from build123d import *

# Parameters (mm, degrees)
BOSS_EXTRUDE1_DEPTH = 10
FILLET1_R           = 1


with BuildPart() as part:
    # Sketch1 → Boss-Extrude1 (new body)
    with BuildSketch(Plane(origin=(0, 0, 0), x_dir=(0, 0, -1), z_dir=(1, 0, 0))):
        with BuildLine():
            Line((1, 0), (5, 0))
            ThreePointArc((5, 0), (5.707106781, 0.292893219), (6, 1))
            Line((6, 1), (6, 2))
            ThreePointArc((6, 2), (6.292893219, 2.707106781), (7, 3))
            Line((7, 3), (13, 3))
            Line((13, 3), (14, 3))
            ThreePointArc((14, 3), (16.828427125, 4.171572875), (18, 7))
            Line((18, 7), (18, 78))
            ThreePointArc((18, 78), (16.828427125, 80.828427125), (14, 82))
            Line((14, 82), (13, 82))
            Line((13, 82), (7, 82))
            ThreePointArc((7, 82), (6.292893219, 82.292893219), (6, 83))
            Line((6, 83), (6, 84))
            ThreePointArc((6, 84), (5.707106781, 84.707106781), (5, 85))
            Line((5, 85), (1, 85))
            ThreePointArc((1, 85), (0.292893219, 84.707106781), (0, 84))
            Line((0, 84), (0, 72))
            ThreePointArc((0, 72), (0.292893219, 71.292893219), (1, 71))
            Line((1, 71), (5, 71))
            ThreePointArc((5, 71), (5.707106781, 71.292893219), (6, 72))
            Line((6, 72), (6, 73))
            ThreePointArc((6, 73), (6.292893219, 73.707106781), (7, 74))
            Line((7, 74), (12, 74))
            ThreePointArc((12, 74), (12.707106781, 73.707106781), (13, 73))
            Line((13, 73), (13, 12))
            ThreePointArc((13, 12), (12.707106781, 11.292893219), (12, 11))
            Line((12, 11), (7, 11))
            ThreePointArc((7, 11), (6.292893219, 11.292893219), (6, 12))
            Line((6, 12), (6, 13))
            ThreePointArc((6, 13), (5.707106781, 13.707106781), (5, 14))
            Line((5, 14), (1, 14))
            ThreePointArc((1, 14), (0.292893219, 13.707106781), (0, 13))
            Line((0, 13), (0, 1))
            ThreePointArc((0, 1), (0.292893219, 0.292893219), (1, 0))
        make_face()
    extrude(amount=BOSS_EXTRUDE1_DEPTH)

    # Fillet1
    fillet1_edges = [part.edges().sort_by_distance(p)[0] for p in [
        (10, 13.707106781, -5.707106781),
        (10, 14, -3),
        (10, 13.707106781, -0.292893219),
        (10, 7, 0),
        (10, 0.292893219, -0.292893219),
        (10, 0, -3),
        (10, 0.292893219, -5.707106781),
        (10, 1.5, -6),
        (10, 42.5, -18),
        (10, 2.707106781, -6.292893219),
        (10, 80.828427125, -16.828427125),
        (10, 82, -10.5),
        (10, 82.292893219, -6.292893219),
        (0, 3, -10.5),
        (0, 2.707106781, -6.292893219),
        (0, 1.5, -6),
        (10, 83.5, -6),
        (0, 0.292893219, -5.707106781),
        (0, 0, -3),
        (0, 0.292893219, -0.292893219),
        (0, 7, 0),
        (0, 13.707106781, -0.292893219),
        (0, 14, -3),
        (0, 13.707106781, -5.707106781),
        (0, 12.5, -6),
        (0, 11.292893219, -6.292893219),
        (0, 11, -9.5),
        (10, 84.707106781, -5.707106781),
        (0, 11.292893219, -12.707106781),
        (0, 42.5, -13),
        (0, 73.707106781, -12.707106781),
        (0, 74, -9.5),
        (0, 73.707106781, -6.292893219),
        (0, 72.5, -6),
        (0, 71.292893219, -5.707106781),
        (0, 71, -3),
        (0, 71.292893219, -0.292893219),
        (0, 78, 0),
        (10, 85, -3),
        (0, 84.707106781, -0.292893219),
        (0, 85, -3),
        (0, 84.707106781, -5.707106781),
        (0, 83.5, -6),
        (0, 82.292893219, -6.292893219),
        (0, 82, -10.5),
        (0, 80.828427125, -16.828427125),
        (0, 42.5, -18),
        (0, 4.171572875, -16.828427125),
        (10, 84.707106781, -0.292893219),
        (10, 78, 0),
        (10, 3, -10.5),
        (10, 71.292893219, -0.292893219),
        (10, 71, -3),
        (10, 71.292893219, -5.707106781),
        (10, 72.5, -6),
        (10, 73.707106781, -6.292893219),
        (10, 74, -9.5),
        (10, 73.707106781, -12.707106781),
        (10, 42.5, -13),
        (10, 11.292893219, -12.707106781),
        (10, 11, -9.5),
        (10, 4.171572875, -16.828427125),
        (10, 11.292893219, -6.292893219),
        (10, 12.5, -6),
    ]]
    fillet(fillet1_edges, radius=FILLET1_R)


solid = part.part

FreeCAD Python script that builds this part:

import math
import FreeCAD as App
import Part
import Sketcher

V = App.Vector


def edges_at(feature, points):
    """Names of the edges that pass closest to the given points."""
    edges = feature.Shape.Edges
    near = lambda p: min(range(len(edges)), key=lambda i: edges[i].distToShape(Part.Vertex(*p))[0])
    return sorted({f"Edge{near(p) + 1}" for p in points})

doc = App.newDocument("Part")
body = doc.addObject("PartDesign::Body", "Body")

sketch1 = doc.addObject("Sketcher::SketchObject", "Sketch")
body.addObject(sketch1)
sketch1.AttachmentSupport = (doc.YZ_Plane, [""])
sketch1.MapMode = "FlatFace"
sketch1.addGeometry([
    Part.LineSegment(V(0, -1, 0), V(0, -5, 0)),
    Part.ArcOfCircle(Part.Circle(V(1, -5, 0), V(0, 0, 1), 1), math.radians(-180), math.radians(-90)),
    Part.LineSegment(V(1, -6, 0), V(2, -6, 0)),
    Part.ArcOfCircle(Part.Circle(V(2, -7, 0), V(0, 0, 1), 1), math.radians(0), math.radians(90)),
    Part.LineSegment(V(3, -7, 0), V(3, -14, 0)),
    Part.ArcOfCircle(Part.Circle(V(7, -14, 0), V(0, 0, 1), 4), math.radians(180), math.radians(270)),
    Part.LineSegment(V(7, -18, 0), V(78, -18, 0)),
    Part.ArcOfCircle(Part.Circle(V(78, -14, 0), V(0, 0, 1), 4), math.radians(-90), math.radians(0)),
    Part.LineSegment(V(82, -14, 0), V(82, -7, 0)),
    Part.ArcOfCircle(Part.Circle(V(83, -7, 0), V(0, 0, 1), 1), math.radians(90), math.radians(180)),
    Part.LineSegment(V(83, -6, 0), V(84, -6, 0)),
    Part.ArcOfCircle(Part.Circle(V(84, -5, 0), V(0, 0, 1), 1), math.radians(-90), math.radians(0)),
    Part.LineSegment(V(85, -5, 0), V(85, -1, 0)),
    Part.ArcOfCircle(Part.Circle(V(84, -1, 0), V(0, 0, 1), 1), math.radians(0), math.radians(90)),
    Part.LineSegment(V(84, 0, 0), V(72, 0, 0)),
    Part.ArcOfCircle(Part.Circle(V(72, -1, 0), V(0, 0, 1), 1), math.radians(90), math.radians(180)),
    Part.LineSegment(V(71, -1, 0), V(71, -5, 0)),
    Part.ArcOfCircle(Part.Circle(V(72, -5, 0), V(0, 0, 1), 1), math.radians(-180), math.radians(-90)),
    Part.LineSegment(V(72, -6, 0), V(73, -6, 0)),
    Part.ArcOfCircle(Part.Circle(V(73, -7, 0), V(0, 0, 1), 1), math.radians(0), math.radians(90)),
    Part.LineSegment(V(74, -7, 0), V(74, -12, 0)),
    Part.ArcOfCircle(Part.Circle(V(73, -12, 0), V(0, 0, 1), 1), math.radians(-90), math.radians(0)),
    Part.LineSegment(V(73, -13, 0), V(12, -13, 0)),
    Part.ArcOfCircle(Part.Circle(V(12, -12, 0), V(0, 0, 1), 1), math.radians(-180), math.radians(-90)),
    Part.LineSegment(V(11, -12, 0), V(11, -7, 0)),
    Part.ArcOfCircle(Part.Circle(V(12, -7, 0), V(0, 0, 1), 1), math.radians(90), math.radians(180)),
    Part.LineSegment(V(12, -6, 0), V(13, -6, 0)),
    Part.ArcOfCircle(Part.Circle(V(13, -5, 0), V(0, 0, 1), 1), math.radians(-90), math.radians(0)),
    Part.LineSegment(V(14, -5, 0), V(14, -1, 0)),
    Part.ArcOfCircle(Part.Circle(V(13, -1, 0), V(0, 0, 1), 1), math.radians(0), math.radians(90)),
    Part.LineSegment(V(13, 0, 0), V(1, 0, 0)),
    Part.ArcOfCircle(Part.Circle(V(1, -1, 0), V(0, 0, 1), 1), math.radians(90), math.radians(180)),
], False)
sketch1.addConstraint([
    Sketcher.Constraint("Tangent", 0, 2, 1, 1),
    Sketcher.Constraint("Tangent", 1, 2, 2, 1),
    Sketcher.Constraint("Tangent", 2, 2, 3, 2),
    Sketcher.Constraint("Tangent", 3, 1, 4, 1),
    Sketcher.Constraint("Tangent", 4, 2, 5, 1),
    Sketcher.Constraint("Tangent", 5, 2, 6, 1),
    Sketcher.Constraint("Tangent", 6, 2, 7, 1),
    Sketcher.Constraint("Tangent", 7, 2, 8, 1),
    Sketcher.Constraint("Tangent", 8, 2, 9, 2),
    Sketcher.Constraint("Tangent", 9, 1, 10, 1),
    Sketcher.Constraint("Tangent", 10, 2, 11, 1),
    Sketcher.Constraint("Tangent", 11, 2, 12, 1),
    Sketcher.Constraint("Tangent", 12, 2, 13, 1),
    Sketcher.Constraint("Tangent", 13, 2, 14, 1),
    Sketcher.Constraint("Tangent", 14, 2, 15, 1),
    Sketcher.Constraint("Tangent", 15, 2, 16, 1),
    Sketcher.Constraint("Tangent", 16, 2, 17, 1),
    Sketcher.Constraint("Tangent", 17, 2, 18, 1),
    Sketcher.Constraint("Tangent", 18, 2, 19, 2),
    Sketcher.Constraint("Tangent", 19, 1, 20, 1),
    Sketcher.Constraint("Tangent", 20, 2, 21, 2),
    Sketcher.Constraint("Tangent", 21, 1, 22, 1),
    Sketcher.Constraint("Tangent", 22, 2, 23, 2),
    Sketcher.Constraint("Tangent", 23, 1, 24, 1),
    Sketcher.Constraint("Tangent", 24, 2, 25, 2),
    Sketcher.Constraint("Tangent", 25, 1, 26, 1),
    Sketcher.Constraint("Tangent", 26, 2, 27, 1),
    Sketcher.Constraint("Tangent", 27, 2, 28, 1),
    Sketcher.Constraint("Tangent", 28, 2, 29, 1),
    Sketcher.Constraint("Tangent", 29, 2, 30, 1),
    Sketcher.Constraint("Tangent", 30, 2, 31, 1),
    Sketcher.Constraint("Tangent", 31, 2, 0, 1),
    Sketcher.Constraint("Vertical", 0),
    Sketcher.Constraint("Horizontal", 2),
    Sketcher.Constraint("Vertical", 4),
    Sketcher.Constraint("Horizontal", 6),
    Sketcher.Constraint("Vertical", 8),
    Sketcher.Constraint("Horizontal", 10),
    Sketcher.Constraint("Vertical", 12),
    Sketcher.Constraint("Horizontal", 14),
    Sketcher.Constraint("Vertical", 16),
    Sketcher.Constraint("Horizontal", 18),
    Sketcher.Constraint("Vertical", 20),
    Sketcher.Constraint("Horizontal", 22),
    Sketcher.Constraint("Vertical", 24),
    Sketcher.Constraint("Horizontal", 26),
    Sketcher.Constraint("Vertical", 28),
    Sketcher.Constraint("Horizontal", 30),
    Sketcher.Constraint("Equal", 1, 3),
    Sketcher.Constraint("Equal", 5, 7),
    Sketcher.Constraint("Equal", 3, 9),
    Sketcher.Constraint("Equal", 9, 11),
    Sketcher.Constraint("Equal", 11, 13),
    Sketcher.Constraint("Equal", 13, 15),
    Sketcher.Constraint("Equal", 15, 17),
    Sketcher.Constraint("Equal", 17, 19),
    Sketcher.Constraint("Equal", 19, 21),
    Sketcher.Constraint("Equal", 21, 23),
    Sketcher.Constraint("Equal", 23, 25),
    Sketcher.Constraint("Equal", 25, 27),
    Sketcher.Constraint("Equal", 27, 29),
    Sketcher.Constraint("Equal", 29, 31),
    Sketcher.Constraint("PointOnObject", 0, 2, -2),
    Sketcher.Constraint("PointOnObject", 13, 2, -1),
    Sketcher.Constraint("PointOnObject", 29, 2, -1),
    Sketcher.Constraint("Horizontal", 3, 3, 9, 3),
    Sketcher.Constraint("Horizontal", 11, 3, 17, 3),
    Sketcher.Constraint("Horizontal", 19, 3, 25, 3),
    Sketcher.Constraint("Equal", 2, 10),
    Sketcher.Constraint("Equal", 10, 18),
    Sketcher.Constraint("Equal", 18, 26),
    Sketcher.Constraint("Equal", 14, 30),
    Sketcher.Constraint("Radius", 1, 1.0),
    Sketcher.Constraint("Radius", 5, 4.0),
    Sketcher.Constraint("DistanceX", 2, 1, 2, 2, 1.0),
    Sketcher.Constraint("DistanceX", 6, 1, 6, 2, 71.0),
    Sketcher.Constraint("DistanceX", 14, 2, 14, 1, 12.0),
    Sketcher.Constraint("DistanceY", 0, 2, 0, 1, 4.0),
    Sketcher.Constraint("DistanceY", 4, 2, 4, 1, 7.0),
    Sketcher.Constraint("DistanceY", 20, 2, 20, 1, 5.0),
])
pad1 = doc.addObject("PartDesign::Pad", "Pad")
body.addObject(pad1)
pad1.Profile = sketch1
pad1.Length = 10
doc.recompute()

fillet = doc.addObject("PartDesign::Fillet", "Fillet")
body.addObject(fillet)
fillet.Base = (pad1, edges_at(pad1, [
    (10, 13.707, -5.707),
    (10, 14, -3),
    (10, 13.707, -0.293),
    (10, 7, 0),
    (10, 0.293, -0.293),
    (10, 0, -3),
    (10, 0.293, -5.707),
    (10, 1.5, -6),
    (10, 42.5, -18),
    (10, 2.707, -6.293),
    (10, 80.828, -16.828),
    (10, 82, -10.5),
    (10, 82.293, -6.293),
    (0, 3, -10.5),
    (0, 2.707, -6.293),
    (0, 1.5, -6),
    (10, 83.5, -6),
    (0, 0.293, -5.707),
    (0, 0, -3),
    (0, 0.293, -0.293),
    (0, 7, 0),
    (0, 13.707, -0.293),
    (0, 14, -3),
    (0, 13.707, -5.707),
    (0, 12.5, -6),
    (0, 11.293, -6.293),
    (0, 11, -9.5),
    (10, 84.707, -5.707),
    (0, 11.293, -12.707),
    (0, 42.5, -13),
    (0, 73.707, -12.707),
    (0, 74, -9.5),
    (0, 73.707, -6.293),
    (0, 72.5, -6),
    (0, 71.293, -5.707),
    (0, 71, -3),
    (0, 71.293, -0.293),
    (0, 78, 0),
    (10, 85, -3),
    (0, 84.707, -0.293),
    (0, 85, -3),
    (0, 84.707, -5.707),
    (0, 83.5, -6),
    (0, 82.293, -6.293),
    (0, 82, -10.5),
    (0, 80.828, -16.828),
    (0, 42.5, -18),
    (0, 4.172, -16.828),
    (10, 84.707, -0.293),
    (10, 78, 0),
    (10, 3, -10.5),
    (10, 71.293, -0.293),
    (10, 71, -3),
    (10, 71.293, -5.707),
    (10, 72.5, -6),
    (10, 73.707, -6.293),
    (10, 74, -9.5),
    (10, 73.707, -12.707),
    (10, 42.5, -13),
    (10, 11.293, -12.707),
    (10, 11, -9.5),
    (10, 4.172, -16.828),
    (10, 11.293, -6.293),
    (10, 12.5, -6),
]))
fillet.Radius = 1

doc.recompute()
